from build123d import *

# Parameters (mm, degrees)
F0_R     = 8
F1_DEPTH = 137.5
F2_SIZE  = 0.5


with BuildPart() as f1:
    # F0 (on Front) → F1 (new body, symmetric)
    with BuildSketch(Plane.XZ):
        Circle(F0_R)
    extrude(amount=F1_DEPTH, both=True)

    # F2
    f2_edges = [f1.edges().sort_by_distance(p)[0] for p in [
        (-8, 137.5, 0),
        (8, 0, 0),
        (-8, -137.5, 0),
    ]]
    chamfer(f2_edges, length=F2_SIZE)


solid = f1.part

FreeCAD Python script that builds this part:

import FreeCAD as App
import Part
import Sketcher

V = App.Vector

doc = App.newDocument("Part")
body = doc.addObject("PartDesign::Body", "Body")

# Sketch on XZ plane
sketch1 = body.newObject("Sketcher::SketchObject", "Sketch")
sketch1.AttachmentSupport = (doc.getObject("XZ_Plane"), [""])
sketch1.MapMode = "FlatFace"
sketch1.addGeometry(Part.Circle(V(0, 0, 0), V(0, 0, 1), 8), False)
sketch1.addConstraint([
    Sketcher.Constraint("Coincident", 0, 3, -1, 1),
    Sketcher.Constraint("Diameter", 0, 16.0),
])
pad1 = body.newObject("PartDesign::Pad", "Pad")
pad1.Profile = sketch1
pad1.Length = 275
pad1.Midplane = True
doc.recompute()

chamfer = body.newObject("PartDesign::Chamfer", "Chamfer")
chamfer.Base = (pad1, ["Edge1"])
chamfer.UseAllEdges = True
chamfer.Size = 0.5

doc.recompute()
